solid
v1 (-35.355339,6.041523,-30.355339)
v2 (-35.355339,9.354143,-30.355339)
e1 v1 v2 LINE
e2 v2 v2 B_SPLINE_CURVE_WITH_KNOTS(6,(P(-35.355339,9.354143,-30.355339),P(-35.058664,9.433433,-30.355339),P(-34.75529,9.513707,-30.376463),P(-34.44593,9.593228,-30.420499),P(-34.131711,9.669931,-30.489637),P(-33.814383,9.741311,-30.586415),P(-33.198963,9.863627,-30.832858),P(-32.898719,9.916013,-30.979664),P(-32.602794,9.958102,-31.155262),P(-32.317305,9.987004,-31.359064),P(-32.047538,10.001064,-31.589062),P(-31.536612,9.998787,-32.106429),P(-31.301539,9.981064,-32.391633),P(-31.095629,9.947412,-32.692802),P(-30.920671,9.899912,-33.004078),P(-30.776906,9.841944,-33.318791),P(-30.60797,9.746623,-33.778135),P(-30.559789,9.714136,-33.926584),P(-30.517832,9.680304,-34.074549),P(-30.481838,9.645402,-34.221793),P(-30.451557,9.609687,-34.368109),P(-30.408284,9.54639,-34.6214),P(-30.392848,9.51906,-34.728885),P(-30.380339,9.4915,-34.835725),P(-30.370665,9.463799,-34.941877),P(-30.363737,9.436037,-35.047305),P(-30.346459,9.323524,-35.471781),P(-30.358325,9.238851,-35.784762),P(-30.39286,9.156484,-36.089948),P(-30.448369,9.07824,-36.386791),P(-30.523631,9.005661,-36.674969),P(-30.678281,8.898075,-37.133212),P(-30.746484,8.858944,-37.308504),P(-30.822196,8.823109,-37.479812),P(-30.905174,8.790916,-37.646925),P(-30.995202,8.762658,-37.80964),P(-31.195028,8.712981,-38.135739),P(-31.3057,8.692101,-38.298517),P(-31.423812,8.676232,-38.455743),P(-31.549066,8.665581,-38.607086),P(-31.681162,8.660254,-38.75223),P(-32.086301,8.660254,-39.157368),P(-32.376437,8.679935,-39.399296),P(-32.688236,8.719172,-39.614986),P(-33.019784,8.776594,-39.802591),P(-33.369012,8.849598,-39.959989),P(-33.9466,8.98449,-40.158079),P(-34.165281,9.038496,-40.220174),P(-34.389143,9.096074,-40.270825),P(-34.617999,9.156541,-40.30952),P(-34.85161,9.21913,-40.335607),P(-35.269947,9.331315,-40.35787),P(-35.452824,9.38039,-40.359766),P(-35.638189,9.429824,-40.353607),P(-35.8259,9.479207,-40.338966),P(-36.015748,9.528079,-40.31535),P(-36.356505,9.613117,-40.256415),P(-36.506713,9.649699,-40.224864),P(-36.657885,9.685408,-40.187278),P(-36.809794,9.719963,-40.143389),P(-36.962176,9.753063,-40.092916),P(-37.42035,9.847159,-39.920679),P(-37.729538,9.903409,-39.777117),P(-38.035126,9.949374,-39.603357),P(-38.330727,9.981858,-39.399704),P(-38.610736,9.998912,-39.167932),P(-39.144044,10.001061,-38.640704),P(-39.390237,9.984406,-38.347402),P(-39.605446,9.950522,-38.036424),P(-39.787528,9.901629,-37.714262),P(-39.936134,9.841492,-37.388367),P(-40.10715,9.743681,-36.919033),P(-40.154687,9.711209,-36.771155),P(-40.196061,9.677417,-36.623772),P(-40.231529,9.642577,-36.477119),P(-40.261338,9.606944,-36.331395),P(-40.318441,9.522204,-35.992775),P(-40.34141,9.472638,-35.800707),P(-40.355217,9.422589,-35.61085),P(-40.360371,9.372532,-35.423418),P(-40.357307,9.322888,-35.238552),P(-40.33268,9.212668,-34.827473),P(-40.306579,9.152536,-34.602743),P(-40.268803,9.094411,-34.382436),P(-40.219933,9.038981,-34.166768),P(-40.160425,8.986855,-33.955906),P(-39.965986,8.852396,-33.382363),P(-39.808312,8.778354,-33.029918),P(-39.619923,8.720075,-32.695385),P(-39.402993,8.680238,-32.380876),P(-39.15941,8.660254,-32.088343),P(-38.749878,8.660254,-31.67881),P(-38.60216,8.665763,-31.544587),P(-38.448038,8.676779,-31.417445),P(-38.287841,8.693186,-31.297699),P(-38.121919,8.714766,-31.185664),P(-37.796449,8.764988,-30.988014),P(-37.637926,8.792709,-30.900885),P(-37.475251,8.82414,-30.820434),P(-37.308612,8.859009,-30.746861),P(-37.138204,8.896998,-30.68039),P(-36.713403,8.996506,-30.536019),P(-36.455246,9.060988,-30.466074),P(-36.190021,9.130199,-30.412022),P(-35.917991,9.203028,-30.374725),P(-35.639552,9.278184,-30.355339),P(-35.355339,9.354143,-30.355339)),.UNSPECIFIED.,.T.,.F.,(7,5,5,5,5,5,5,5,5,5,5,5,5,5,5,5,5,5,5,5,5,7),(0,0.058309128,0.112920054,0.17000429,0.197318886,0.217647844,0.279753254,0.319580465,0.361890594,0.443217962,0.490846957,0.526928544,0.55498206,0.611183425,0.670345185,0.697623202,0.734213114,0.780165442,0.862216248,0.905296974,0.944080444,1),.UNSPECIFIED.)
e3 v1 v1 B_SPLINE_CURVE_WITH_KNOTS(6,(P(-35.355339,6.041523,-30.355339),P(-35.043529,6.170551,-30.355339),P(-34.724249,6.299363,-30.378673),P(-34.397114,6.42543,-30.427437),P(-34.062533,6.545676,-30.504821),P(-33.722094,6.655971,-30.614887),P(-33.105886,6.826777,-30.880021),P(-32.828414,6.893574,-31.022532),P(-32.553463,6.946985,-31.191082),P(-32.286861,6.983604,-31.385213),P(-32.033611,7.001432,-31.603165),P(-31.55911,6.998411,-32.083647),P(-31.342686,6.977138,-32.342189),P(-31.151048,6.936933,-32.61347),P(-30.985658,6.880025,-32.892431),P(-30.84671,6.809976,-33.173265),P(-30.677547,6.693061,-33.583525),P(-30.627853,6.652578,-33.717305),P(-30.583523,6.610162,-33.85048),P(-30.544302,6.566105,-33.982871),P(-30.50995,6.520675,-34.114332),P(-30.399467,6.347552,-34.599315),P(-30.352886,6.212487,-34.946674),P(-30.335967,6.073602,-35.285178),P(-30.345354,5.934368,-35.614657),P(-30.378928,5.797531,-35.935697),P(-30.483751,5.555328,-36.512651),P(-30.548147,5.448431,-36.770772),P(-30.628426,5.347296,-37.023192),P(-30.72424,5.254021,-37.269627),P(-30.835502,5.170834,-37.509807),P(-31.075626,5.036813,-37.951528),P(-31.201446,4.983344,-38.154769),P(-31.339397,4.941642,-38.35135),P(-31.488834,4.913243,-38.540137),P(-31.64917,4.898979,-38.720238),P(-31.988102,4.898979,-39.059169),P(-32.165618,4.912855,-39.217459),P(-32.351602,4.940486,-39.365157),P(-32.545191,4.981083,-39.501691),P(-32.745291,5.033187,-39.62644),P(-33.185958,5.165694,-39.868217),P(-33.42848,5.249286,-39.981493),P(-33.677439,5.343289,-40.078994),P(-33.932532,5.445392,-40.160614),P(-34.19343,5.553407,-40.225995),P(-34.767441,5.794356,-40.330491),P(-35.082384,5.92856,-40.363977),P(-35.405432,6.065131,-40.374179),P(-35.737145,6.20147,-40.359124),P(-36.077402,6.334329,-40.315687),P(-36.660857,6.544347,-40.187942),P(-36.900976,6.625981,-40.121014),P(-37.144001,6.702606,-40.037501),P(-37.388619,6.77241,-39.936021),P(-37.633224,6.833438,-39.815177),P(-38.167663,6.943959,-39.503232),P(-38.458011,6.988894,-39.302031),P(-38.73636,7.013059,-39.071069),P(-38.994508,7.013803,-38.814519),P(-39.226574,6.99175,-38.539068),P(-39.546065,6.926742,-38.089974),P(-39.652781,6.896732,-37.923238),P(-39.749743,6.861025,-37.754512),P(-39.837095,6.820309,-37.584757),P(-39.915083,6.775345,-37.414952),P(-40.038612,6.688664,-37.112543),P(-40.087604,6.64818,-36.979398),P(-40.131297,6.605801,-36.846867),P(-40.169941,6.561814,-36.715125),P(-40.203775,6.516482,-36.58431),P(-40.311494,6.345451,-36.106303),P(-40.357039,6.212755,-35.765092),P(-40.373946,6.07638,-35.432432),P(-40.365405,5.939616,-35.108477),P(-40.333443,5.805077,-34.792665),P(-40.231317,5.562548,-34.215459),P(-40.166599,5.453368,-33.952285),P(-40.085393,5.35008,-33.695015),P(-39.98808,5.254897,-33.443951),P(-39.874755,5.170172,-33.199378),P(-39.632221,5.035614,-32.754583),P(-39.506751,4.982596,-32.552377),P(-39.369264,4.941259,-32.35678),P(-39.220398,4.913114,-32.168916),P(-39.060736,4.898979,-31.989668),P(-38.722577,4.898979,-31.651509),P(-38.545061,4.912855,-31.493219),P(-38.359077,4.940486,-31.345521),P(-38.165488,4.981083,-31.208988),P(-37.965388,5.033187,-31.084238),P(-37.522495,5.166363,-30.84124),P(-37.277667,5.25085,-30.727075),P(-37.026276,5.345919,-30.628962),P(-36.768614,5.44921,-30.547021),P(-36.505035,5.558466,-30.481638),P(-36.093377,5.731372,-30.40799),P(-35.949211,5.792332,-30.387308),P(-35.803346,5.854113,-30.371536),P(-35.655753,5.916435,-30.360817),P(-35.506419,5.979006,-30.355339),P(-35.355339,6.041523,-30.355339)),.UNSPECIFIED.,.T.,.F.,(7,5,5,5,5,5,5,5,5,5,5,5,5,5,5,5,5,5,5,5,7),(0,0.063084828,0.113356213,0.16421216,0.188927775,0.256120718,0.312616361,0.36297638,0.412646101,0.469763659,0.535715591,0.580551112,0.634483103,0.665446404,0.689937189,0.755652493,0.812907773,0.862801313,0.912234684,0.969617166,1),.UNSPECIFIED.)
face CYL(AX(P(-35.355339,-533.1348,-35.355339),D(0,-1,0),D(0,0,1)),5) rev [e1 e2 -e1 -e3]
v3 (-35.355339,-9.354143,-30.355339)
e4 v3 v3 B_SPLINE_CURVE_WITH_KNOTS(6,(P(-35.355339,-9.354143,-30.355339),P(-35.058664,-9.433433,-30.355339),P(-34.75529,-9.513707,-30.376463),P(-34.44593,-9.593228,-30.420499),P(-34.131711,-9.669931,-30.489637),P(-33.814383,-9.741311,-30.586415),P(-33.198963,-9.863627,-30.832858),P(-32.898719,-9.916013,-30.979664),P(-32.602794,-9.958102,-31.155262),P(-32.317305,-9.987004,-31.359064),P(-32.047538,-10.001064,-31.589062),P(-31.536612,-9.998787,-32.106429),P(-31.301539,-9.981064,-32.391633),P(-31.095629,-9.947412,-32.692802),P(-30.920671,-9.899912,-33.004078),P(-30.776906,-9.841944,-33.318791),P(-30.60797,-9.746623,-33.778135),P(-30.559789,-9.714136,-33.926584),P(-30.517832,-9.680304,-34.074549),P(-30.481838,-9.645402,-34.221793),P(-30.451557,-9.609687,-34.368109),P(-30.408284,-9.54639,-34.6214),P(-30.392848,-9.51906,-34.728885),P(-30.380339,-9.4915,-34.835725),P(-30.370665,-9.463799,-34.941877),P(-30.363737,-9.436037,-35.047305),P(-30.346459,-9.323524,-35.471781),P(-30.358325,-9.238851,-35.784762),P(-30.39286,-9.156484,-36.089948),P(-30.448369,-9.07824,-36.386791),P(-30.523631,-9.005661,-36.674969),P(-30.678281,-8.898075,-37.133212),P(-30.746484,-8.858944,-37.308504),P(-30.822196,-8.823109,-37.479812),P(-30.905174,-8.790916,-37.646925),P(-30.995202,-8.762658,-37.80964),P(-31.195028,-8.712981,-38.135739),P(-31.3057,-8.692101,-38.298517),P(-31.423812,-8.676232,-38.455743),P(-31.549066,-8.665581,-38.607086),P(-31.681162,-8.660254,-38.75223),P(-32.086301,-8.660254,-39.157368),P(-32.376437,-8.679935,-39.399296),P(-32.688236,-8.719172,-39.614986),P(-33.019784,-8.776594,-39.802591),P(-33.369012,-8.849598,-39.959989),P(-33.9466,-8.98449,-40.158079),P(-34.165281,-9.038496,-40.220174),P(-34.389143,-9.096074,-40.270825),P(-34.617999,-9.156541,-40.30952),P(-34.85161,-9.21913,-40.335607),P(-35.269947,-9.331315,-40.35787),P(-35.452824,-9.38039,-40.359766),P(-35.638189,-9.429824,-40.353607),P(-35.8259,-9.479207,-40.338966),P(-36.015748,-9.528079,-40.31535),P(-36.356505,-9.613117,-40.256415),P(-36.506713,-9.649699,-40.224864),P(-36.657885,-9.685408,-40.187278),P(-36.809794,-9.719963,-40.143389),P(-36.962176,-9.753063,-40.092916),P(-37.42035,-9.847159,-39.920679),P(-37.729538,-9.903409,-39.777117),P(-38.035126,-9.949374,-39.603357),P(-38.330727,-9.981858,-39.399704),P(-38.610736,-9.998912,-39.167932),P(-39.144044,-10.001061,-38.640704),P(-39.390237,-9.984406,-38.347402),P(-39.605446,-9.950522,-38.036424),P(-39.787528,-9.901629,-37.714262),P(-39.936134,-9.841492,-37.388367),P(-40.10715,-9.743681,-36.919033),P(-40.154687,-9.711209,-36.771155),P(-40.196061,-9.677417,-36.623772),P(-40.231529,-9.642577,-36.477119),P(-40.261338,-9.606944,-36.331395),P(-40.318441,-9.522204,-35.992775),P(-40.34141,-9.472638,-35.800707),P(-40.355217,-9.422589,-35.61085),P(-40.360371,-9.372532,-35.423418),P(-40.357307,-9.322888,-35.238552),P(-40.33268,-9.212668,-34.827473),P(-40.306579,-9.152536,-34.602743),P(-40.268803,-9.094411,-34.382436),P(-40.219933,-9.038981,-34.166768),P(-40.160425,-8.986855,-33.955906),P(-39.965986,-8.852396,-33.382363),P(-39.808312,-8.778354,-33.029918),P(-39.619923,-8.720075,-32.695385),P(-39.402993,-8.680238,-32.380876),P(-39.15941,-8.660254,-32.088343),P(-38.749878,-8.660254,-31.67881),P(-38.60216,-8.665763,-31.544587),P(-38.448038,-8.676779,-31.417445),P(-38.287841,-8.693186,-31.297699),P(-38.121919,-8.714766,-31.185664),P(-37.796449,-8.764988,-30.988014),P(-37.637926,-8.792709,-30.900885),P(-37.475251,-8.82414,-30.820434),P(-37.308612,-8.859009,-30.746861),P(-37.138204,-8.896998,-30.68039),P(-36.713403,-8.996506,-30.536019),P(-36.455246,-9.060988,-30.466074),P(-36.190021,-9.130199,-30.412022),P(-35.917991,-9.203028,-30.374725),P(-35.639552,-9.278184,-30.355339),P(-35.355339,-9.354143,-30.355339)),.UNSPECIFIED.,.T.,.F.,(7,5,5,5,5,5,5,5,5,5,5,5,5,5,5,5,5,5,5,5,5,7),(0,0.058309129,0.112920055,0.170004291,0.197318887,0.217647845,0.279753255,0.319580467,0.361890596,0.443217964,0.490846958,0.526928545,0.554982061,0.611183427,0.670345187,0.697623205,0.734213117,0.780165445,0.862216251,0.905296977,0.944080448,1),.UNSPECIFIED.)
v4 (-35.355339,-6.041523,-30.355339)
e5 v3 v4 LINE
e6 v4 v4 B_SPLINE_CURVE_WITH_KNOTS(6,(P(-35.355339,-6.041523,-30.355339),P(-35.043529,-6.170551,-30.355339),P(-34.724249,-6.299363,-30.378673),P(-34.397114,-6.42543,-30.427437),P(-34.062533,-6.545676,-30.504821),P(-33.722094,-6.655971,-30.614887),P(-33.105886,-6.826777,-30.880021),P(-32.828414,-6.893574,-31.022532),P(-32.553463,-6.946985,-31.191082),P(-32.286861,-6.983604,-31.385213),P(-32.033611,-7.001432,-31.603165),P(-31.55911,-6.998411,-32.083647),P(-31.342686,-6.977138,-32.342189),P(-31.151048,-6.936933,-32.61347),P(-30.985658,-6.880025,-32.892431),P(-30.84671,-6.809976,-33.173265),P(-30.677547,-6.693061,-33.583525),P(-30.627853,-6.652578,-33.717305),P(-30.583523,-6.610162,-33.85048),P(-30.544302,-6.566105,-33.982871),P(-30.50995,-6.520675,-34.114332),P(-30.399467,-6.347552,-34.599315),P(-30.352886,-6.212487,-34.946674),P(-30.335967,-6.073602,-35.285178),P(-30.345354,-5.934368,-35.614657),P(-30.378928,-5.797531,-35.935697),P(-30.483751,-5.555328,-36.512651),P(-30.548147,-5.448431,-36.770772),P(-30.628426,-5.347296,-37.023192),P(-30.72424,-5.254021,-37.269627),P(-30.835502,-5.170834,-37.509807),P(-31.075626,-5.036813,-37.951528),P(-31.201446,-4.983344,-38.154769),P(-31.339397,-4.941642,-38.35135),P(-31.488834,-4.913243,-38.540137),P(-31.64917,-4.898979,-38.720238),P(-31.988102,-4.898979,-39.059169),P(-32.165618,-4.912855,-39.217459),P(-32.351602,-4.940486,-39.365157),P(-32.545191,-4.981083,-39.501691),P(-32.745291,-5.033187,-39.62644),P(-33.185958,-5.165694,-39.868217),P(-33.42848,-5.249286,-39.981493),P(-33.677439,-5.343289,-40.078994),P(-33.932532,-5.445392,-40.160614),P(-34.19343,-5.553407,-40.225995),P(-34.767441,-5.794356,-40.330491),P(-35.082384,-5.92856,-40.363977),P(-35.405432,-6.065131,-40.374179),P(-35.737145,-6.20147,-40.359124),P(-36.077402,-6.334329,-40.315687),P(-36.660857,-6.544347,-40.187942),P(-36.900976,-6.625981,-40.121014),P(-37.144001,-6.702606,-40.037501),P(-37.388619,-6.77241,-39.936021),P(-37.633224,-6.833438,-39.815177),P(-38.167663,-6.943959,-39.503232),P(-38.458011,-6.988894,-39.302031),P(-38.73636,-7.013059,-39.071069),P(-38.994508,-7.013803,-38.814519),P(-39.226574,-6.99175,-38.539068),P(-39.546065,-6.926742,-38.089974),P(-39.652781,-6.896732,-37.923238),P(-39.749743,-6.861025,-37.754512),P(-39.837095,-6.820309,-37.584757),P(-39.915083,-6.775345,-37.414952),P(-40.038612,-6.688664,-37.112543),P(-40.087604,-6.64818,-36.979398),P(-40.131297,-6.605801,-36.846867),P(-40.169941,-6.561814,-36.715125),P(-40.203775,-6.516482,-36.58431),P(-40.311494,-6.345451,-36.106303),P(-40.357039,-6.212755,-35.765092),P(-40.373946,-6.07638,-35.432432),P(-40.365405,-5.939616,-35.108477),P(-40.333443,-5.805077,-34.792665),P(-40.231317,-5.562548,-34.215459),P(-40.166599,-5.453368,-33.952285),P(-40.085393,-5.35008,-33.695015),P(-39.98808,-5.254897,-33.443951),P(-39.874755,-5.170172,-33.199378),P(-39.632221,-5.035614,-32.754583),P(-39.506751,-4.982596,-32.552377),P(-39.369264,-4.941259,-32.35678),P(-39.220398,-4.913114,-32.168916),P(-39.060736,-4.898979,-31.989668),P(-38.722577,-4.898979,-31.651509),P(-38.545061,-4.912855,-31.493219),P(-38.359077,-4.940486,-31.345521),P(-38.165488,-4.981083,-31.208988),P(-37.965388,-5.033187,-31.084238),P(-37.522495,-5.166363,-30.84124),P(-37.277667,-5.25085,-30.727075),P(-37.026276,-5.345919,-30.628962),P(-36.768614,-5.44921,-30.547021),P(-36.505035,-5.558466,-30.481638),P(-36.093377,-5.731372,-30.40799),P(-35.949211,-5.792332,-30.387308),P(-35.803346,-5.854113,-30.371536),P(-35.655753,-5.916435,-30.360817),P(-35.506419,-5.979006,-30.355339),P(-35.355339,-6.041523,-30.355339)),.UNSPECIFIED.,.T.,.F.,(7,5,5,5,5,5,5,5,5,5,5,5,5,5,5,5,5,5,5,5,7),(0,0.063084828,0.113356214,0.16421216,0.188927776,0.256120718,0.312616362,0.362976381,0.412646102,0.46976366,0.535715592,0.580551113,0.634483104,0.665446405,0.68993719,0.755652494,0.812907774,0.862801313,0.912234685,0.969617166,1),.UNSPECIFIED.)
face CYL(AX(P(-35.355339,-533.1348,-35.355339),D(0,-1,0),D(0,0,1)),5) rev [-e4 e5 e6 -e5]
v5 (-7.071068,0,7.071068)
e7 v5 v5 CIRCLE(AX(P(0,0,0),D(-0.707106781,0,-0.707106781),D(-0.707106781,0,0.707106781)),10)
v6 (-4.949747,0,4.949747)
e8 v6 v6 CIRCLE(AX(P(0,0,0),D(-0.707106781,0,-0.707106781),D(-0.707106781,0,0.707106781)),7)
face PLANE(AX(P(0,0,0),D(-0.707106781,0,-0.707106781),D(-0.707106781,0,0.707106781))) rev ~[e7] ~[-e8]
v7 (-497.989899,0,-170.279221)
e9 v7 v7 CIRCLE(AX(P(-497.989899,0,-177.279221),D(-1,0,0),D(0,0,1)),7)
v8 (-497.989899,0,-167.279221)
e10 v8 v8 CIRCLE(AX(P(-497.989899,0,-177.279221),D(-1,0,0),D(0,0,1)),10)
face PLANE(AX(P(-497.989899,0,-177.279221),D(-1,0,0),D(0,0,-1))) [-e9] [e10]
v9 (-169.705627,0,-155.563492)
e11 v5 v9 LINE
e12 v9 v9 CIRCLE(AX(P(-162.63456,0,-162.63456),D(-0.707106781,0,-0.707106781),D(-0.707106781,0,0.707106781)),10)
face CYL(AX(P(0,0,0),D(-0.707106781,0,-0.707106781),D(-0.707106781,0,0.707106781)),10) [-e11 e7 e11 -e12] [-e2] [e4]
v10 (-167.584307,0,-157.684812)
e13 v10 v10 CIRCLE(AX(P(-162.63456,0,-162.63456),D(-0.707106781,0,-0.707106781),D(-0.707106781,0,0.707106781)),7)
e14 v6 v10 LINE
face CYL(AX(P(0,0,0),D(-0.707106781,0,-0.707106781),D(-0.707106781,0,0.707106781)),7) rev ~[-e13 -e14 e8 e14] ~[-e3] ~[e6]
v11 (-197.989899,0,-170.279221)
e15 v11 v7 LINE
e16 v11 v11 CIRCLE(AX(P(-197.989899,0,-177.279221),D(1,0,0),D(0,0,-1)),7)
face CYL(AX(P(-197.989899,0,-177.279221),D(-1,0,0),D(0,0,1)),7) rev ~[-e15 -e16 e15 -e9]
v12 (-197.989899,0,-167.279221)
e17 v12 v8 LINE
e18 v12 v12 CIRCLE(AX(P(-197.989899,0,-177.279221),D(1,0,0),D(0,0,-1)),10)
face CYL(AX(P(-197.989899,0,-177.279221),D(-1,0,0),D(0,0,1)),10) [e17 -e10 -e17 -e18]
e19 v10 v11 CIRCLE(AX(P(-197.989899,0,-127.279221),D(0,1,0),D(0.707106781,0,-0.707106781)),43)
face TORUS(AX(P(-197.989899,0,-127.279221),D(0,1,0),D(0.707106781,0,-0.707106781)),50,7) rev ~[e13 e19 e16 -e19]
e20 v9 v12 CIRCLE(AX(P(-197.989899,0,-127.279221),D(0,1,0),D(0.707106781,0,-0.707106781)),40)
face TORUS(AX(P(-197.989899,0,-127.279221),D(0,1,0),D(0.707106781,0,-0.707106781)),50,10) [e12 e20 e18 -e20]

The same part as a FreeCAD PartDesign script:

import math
import FreeCAD as App
import Part
import Sketcher
from FreeCAD import Vector
Q = App.Units.Quantity

doc = App.newDocument("Part")
body = doc.addObject("PartDesign::Body", "Body")

# Sketch on an angled plane
sketch1 = doc.addObject("Sketcher::SketchObject", "Sketch")
body.addObject(sketch1)
sketch1.Placement = App.Placement(Vector(0, 0, 0), App.Rotation(Vector(-0.707106781, 0, 0.707106781), Vector(0, 0.999999999, 0), Vector(-0.707106781, 0, -0.707106781), "ZXY"))
sketch1.addGeometry(Part.Circle(Vector(0, 0, 0), Vector(0, 0, 1), 10), False)
sketch1.addGeometry(Part.Circle(Vector(0, 0, 0), Vector(0, 0, 1), 7), False)
sketch1.addConstraint(Sketcher.Constraint("Coincident", 0, 3, -1, 1))
sketch1.addConstraint(Sketcher.Constraint("Coincident", 1, 3, -1, 1))
sketch1.addConstraint(Sketcher.Constraint("Diameter", 0, Q("20 mm")))
sketch1.addConstraint(Sketcher.Constraint("Diameter", 1, Q("14 mm")))

# Sketch on XZ plane
sketch2 = doc.addObject("Sketcher::SketchObject", "Sketch001")
body.addObject(sketch2)
sketch2.AttachmentSupport = (doc.XZ_Plane, [""])
sketch2.MapMode = "FlatFace"
sketch2.addGeometry(Part.LineSegment(Vector(0, 0, 0), Vector(-163, -163, 0)), False)
sketch2.addGeometry(Part.ArcOfCircle(Part.Circle(Vector(-198, -127, 0), Vector(0, 0, 1), 50), math.radians(-90), math.radians(-45)), False)
sketch2.addGeometry(Part.LineSegment(Vector(-198, -177, 0), Vector(-498, -177, 0)), False)
sketch2.addConstraint(Sketcher.Constraint("Tangent", 0, 2, 1, 2))
sketch2.addConstraint(Sketcher.Constraint("Tangent", 1, 1, 2, 1))
sketch2.addConstraint(Sketcher.Constraint("Horizontal", 2))
sketch2.addConstraint(Sketcher.Constraint("Coincident", 0, 1, -1, 1))
sketch2.addConstraint(Sketcher.Constraint("Radius", 1, Q("50 mm")))
sketch2.addConstraint(Sketcher.Constraint("DistanceX", 2, 2, 2, 1, Q("300 mm")))
sketch2.addConstraint(Sketcher.Constraint("Angle", 0, Q("-135 deg")))
sketch2.addConstraint(Sketcher.Constraint("Distance", 0, Q("230 mm")))
doc.recompute()

additivepipe = doc.addObject("PartDesign::AdditivePipe", "AdditivePipe")
body.addObject(additivepipe)
additivepipe.Profile = sketch1
additivepipe.Spine = (sketch2, ["Edge1", "Edge2", "Edge3"])

# Sketch on XZ plane
sketch3 = doc.addObject("Sketcher::SketchObject", "Sketch002")
body.addObject(sketch3)
sketch3.AttachmentSupport = (doc.XZ_Plane, [""])
sketch3.MapMode = "FlatFace"
sketch3.addGeometry(Part.Circle(Vector(-35, -35, 0), Vector(0, 0, 1), 5), False)
sketch3.addConstraint(Sketcher.Constraint("Diameter", 0, Q("10 mm")))
sketch3.addConstraint(Sketcher.Constraint("DistanceX", 0, 3, -1, 1, Q("35.355339 mm")))
sketch3.addConstraint(Sketcher.Constraint("DistanceY", 0, 3, -1, 1, Q("35.355339 mm")))
pocket1 = doc.addObject("PartDesign::Pocket", "Pocket")
body.addObject(pocket1)
pocket1.Profile = sketch3
pocket1.Type = "ThroughAll"
pocket1.Midplane = True

doc.recompute()
